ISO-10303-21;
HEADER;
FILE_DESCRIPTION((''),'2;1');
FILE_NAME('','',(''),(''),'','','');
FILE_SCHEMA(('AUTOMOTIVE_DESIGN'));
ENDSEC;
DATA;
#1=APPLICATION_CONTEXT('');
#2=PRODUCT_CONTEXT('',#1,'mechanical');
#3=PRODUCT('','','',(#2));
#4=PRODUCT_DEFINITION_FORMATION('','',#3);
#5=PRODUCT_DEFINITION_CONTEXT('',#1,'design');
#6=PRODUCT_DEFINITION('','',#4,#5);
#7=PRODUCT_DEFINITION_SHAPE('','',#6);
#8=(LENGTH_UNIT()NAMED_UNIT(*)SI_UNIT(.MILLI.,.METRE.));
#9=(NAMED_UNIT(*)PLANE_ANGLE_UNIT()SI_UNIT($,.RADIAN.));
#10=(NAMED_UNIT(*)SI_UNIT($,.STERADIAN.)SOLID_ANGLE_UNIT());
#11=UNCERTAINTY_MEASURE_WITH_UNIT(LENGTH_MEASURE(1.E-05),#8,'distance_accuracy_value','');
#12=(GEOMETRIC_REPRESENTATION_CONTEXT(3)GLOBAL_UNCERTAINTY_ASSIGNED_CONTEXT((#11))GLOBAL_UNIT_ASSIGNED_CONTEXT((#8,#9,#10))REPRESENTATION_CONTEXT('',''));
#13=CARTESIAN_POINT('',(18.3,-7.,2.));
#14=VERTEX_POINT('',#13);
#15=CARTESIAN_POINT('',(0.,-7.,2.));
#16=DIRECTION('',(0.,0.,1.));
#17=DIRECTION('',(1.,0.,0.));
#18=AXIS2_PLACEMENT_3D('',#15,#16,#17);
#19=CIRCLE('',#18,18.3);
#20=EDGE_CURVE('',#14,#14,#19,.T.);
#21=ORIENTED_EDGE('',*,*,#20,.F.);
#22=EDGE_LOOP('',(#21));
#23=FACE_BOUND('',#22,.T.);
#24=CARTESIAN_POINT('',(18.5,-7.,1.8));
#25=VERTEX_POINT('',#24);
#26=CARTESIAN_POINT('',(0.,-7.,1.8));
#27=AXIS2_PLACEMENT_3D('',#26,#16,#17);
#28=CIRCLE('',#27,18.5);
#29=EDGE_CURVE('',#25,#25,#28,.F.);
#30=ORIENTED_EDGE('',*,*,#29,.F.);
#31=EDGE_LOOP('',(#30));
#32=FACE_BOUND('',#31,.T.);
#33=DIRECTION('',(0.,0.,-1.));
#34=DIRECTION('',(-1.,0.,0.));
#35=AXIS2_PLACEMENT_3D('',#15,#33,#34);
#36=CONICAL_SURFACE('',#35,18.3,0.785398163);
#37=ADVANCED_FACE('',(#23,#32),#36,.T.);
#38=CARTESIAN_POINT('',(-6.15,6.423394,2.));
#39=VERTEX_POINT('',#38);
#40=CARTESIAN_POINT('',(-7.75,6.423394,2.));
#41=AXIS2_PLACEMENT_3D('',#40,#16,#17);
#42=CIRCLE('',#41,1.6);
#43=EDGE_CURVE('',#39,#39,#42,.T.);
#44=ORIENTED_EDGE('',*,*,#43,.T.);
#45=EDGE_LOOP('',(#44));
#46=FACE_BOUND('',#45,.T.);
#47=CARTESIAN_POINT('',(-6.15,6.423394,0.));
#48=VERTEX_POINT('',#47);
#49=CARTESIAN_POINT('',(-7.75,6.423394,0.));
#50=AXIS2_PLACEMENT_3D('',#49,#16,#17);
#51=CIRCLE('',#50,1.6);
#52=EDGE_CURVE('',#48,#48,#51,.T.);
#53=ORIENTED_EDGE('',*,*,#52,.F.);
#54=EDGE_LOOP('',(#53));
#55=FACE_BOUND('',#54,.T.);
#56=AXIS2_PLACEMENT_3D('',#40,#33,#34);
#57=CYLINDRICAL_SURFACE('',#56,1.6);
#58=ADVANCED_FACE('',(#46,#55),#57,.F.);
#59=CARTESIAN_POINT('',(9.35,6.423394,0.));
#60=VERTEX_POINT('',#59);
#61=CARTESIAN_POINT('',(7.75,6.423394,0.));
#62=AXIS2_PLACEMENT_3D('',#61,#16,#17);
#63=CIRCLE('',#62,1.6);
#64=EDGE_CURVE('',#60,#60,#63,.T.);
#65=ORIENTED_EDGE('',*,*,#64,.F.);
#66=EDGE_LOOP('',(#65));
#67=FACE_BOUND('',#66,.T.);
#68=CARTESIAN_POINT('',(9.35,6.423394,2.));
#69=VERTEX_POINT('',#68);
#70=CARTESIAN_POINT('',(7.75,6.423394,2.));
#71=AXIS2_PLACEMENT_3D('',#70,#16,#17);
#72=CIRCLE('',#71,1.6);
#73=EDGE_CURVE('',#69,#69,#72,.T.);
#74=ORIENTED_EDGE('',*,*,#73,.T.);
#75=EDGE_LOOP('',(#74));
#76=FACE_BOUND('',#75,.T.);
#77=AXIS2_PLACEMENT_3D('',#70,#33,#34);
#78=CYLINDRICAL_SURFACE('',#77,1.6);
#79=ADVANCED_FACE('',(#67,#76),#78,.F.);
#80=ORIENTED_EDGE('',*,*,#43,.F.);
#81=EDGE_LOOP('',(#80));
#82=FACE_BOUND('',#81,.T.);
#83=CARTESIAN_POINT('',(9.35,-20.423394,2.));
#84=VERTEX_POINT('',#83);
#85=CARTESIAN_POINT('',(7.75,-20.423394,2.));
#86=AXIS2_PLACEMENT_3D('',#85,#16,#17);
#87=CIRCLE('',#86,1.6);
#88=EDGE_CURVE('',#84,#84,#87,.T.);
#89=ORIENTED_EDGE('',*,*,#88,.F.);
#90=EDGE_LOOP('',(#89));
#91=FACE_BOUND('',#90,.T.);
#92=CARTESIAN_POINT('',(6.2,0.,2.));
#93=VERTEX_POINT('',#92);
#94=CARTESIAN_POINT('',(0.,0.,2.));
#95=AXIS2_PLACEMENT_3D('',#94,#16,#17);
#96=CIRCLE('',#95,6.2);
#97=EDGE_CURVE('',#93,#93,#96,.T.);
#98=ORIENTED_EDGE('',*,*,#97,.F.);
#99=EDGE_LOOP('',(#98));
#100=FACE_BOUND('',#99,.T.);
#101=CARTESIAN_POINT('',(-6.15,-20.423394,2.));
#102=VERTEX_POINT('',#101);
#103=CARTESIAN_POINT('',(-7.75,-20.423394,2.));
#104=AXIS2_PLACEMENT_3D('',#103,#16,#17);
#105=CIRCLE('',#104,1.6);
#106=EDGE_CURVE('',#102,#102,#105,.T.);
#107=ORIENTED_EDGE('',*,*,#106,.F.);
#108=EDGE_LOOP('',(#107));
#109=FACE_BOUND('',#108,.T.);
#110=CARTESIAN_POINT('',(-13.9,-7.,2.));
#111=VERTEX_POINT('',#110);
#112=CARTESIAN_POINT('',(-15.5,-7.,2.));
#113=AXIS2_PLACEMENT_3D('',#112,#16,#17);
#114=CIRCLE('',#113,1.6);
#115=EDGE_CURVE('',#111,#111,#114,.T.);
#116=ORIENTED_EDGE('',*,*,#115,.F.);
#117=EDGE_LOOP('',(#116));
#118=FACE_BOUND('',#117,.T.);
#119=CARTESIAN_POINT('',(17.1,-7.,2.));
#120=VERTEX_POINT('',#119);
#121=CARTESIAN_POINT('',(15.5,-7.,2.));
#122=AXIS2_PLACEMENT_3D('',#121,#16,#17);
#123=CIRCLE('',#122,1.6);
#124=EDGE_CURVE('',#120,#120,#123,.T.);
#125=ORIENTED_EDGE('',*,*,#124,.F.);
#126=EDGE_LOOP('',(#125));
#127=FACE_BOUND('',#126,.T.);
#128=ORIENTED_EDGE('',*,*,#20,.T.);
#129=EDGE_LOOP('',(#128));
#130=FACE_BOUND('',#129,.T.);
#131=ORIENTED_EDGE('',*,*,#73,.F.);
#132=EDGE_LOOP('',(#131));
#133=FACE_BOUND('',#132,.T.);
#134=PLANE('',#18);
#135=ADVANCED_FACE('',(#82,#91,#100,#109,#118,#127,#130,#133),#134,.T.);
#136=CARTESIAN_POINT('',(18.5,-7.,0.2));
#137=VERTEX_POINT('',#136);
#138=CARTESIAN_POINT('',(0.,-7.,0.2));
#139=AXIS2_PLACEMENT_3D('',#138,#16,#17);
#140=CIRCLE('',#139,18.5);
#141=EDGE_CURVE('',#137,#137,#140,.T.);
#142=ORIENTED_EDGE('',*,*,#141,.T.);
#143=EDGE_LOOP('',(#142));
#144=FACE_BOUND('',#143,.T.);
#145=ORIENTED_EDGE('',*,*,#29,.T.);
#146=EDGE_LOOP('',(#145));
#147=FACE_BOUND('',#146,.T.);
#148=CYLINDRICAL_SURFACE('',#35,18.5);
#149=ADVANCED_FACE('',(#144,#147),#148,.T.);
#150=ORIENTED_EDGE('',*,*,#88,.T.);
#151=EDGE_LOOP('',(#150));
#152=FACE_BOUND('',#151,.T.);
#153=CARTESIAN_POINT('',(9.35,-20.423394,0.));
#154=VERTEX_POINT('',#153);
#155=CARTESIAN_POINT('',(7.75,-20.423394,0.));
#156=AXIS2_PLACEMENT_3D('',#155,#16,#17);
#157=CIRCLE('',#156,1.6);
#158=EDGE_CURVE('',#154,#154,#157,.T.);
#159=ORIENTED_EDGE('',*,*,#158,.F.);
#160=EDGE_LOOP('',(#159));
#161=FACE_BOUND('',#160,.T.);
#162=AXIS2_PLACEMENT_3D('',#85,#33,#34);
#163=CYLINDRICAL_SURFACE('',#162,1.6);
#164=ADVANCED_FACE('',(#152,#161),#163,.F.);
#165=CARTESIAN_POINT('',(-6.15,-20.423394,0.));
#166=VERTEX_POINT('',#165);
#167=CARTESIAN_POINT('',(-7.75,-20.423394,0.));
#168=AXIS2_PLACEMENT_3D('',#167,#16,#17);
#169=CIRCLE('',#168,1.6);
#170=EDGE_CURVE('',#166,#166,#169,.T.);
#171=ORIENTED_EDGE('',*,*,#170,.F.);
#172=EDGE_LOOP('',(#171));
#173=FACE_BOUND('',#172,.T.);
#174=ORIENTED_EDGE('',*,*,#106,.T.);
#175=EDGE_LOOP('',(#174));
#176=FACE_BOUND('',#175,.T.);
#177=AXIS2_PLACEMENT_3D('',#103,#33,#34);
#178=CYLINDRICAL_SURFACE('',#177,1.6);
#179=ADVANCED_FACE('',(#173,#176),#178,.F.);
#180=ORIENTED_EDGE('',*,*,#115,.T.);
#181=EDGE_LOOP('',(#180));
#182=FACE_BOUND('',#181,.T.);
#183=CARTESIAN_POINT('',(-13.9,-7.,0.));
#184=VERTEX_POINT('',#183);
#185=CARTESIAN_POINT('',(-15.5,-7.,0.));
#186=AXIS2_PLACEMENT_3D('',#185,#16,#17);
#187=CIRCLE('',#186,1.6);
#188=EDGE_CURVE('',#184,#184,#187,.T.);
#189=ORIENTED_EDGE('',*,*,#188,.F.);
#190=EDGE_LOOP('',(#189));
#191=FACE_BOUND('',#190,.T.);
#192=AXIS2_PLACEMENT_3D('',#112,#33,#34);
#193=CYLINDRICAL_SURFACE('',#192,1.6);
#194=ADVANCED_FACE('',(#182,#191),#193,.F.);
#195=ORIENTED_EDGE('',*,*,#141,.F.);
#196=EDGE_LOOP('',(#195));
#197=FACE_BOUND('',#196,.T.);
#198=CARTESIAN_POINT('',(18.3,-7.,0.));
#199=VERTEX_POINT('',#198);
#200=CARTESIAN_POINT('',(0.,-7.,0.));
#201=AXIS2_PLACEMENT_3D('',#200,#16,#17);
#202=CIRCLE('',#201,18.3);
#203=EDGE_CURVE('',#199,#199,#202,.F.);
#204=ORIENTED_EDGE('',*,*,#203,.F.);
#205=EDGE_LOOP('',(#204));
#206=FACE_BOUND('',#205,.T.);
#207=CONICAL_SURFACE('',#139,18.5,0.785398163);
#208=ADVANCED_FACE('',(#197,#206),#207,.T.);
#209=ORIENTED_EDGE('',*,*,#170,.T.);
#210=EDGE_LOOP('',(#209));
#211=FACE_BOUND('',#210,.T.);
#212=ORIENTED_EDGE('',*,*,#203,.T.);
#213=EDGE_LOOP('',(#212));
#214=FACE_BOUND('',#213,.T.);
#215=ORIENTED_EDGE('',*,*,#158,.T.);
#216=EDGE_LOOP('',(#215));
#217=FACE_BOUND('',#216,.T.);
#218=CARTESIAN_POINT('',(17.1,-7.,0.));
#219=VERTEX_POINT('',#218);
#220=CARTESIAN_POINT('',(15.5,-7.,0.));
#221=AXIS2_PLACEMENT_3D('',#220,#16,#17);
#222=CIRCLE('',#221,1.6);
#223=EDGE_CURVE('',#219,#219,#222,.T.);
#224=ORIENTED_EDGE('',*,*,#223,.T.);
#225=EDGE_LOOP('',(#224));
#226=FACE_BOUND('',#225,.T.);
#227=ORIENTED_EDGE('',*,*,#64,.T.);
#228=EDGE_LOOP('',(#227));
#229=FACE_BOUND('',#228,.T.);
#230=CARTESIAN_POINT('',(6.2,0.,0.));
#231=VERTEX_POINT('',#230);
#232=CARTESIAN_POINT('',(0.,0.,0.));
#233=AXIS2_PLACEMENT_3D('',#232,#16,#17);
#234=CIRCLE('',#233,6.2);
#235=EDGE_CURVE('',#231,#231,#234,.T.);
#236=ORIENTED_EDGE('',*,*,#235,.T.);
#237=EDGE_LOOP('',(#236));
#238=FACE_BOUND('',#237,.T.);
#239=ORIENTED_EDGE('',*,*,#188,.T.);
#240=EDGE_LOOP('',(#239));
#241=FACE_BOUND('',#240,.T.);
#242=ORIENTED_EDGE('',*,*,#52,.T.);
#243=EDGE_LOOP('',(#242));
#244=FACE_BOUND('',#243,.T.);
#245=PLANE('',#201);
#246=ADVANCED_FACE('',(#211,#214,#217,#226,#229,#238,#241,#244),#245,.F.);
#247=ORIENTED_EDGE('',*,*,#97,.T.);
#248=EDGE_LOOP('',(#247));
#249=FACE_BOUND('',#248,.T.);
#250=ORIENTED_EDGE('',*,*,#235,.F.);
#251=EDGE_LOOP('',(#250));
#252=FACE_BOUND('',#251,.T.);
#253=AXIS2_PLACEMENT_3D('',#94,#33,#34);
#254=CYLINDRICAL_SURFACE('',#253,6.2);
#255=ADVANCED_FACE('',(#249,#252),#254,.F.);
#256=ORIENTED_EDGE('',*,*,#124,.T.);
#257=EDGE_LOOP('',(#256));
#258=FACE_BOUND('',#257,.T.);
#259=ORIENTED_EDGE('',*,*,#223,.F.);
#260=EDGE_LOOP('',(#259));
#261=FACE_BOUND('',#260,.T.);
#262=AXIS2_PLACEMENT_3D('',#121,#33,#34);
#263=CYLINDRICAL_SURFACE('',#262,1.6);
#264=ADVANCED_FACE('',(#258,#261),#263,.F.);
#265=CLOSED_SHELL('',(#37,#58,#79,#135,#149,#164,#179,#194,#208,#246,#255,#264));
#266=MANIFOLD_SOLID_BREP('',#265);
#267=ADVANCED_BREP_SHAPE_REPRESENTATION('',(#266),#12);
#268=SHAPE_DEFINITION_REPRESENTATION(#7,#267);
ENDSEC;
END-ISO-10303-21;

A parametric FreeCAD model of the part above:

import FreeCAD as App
import Part
import Sketcher
from FreeCAD import Vector
Q = App.Units.Quantity


def edges_at(feature, points):
    """Names of the edges that pass closest to the given points."""
    edges = feature.Shape.Edges
    near = lambda p: min(range(len(edges)), key=lambda i: edges[i].distToShape(Part.Vertex(*p))[0])
    return sorted({f"Edge{near(p) + 1}" for p in points})

doc = App.newDocument("Part")
body = doc.addObject("PartDesign::Body", "Body")

# Sketch on XY plane
sketch1 = body.newObject("Sketcher::SketchObject", "Sketch")
sketch1.AttachmentSupport = (doc.getObject("XY_Plane"), [""])
sketch1.MapMode = "FlatFace"
sketch1.addGeometry([
    Part.Circle(Vector(0, -7, 0), Vector(0, 0, 1), 18.5),  # 0
    Part.Circle(Vector(-7.75, -20.423394, 0), Vector(0, 0, 1), 1.6),  # 1
    Part.Circle(Vector(7.75, -20.423394, 0), Vector(0, 0, 1), 1.6),  # 2
    Part.Circle(Vector(-15.5, -7, 0), Vector(0, 0, 1), 1.6),  # 3
    Part.Circle(Vector(0, 0, 0), Vector(0, 0, 1), 6.2),  # 4
    Part.Circle(Vector(-7.75, 6.423394, 0), Vector(0, 0, 1), 1.6),  # 5
    Part.Circle(Vector(15.5, -7, 0), Vector(0, 0, 1), 1.6),  # 6
    Part.Circle(Vector(7.75, 6.423394, 0), Vector(0, 0, 1), 1.6),  # 7
], False)
sketch1.addConstraint([
    Sketcher.Constraint("Coincident", 4, 3, -1, 1),
    Sketcher.Constraint("Equal", 1, 2),
    Sketcher.Constraint("Equal", 2, 3),
    Sketcher.Constraint("Equal", 3, 5),
    Sketcher.Constraint("Equal", 5, 6),
    Sketcher.Constraint("Equal", 6, 7),
    Sketcher.Constraint("Symmetric", 1, 3, 2, 3, -2),
    Sketcher.Constraint("Symmetric", 3, 3, 6, 3, -2),
    Sketcher.Constraint("Symmetric", 5, 3, 7, 3, -2),
    Sketcher.Constraint("PointOnObject", 0, 3, -2),
    Sketcher.Constraint("Horizontal", 0, 3, 3, 3),
    Sketcher.Constraint("Vertical", 1, 3, 5, 3),
    Sketcher.Constraint("Diameter", 0, Q("37 mm")),
    Sketcher.Constraint("Diameter", 1, Q("3.2 mm")),
    Sketcher.Constraint("Diameter", 4, Q("12.4 mm")),
    Sketcher.Constraint("DistanceY", 0, 3, -1, 1, Q("7 mm")),
    Sketcher.Constraint("DistanceX", 3, 3, -1, 1, Q("15.5 mm")),
    Sketcher.Constraint("DistanceX", 1, 3, 2, 3, Q("15.5 mm")),
    Sketcher.Constraint("DistanceY", 1, 3, -1, 1, Q("20.423394 mm")),
    Sketcher.Constraint("DistanceY", -1, 1, 5, 3, Q("6.423394 mm")),
])
pad1 = body.newObject("PartDesign::Pad", "Pad")
pad1.Profile = sketch1
pad1.Length = 2
doc.recompute()

chamfer = body.newObject("PartDesign::Chamfer", "Chamfer")
chamfer.Base = (pad1, edges_at(pad1, [(-18.5, -7, 0), (-18.5, -7, 2)]))
chamfer.Size = 0.2

doc.recompute()
